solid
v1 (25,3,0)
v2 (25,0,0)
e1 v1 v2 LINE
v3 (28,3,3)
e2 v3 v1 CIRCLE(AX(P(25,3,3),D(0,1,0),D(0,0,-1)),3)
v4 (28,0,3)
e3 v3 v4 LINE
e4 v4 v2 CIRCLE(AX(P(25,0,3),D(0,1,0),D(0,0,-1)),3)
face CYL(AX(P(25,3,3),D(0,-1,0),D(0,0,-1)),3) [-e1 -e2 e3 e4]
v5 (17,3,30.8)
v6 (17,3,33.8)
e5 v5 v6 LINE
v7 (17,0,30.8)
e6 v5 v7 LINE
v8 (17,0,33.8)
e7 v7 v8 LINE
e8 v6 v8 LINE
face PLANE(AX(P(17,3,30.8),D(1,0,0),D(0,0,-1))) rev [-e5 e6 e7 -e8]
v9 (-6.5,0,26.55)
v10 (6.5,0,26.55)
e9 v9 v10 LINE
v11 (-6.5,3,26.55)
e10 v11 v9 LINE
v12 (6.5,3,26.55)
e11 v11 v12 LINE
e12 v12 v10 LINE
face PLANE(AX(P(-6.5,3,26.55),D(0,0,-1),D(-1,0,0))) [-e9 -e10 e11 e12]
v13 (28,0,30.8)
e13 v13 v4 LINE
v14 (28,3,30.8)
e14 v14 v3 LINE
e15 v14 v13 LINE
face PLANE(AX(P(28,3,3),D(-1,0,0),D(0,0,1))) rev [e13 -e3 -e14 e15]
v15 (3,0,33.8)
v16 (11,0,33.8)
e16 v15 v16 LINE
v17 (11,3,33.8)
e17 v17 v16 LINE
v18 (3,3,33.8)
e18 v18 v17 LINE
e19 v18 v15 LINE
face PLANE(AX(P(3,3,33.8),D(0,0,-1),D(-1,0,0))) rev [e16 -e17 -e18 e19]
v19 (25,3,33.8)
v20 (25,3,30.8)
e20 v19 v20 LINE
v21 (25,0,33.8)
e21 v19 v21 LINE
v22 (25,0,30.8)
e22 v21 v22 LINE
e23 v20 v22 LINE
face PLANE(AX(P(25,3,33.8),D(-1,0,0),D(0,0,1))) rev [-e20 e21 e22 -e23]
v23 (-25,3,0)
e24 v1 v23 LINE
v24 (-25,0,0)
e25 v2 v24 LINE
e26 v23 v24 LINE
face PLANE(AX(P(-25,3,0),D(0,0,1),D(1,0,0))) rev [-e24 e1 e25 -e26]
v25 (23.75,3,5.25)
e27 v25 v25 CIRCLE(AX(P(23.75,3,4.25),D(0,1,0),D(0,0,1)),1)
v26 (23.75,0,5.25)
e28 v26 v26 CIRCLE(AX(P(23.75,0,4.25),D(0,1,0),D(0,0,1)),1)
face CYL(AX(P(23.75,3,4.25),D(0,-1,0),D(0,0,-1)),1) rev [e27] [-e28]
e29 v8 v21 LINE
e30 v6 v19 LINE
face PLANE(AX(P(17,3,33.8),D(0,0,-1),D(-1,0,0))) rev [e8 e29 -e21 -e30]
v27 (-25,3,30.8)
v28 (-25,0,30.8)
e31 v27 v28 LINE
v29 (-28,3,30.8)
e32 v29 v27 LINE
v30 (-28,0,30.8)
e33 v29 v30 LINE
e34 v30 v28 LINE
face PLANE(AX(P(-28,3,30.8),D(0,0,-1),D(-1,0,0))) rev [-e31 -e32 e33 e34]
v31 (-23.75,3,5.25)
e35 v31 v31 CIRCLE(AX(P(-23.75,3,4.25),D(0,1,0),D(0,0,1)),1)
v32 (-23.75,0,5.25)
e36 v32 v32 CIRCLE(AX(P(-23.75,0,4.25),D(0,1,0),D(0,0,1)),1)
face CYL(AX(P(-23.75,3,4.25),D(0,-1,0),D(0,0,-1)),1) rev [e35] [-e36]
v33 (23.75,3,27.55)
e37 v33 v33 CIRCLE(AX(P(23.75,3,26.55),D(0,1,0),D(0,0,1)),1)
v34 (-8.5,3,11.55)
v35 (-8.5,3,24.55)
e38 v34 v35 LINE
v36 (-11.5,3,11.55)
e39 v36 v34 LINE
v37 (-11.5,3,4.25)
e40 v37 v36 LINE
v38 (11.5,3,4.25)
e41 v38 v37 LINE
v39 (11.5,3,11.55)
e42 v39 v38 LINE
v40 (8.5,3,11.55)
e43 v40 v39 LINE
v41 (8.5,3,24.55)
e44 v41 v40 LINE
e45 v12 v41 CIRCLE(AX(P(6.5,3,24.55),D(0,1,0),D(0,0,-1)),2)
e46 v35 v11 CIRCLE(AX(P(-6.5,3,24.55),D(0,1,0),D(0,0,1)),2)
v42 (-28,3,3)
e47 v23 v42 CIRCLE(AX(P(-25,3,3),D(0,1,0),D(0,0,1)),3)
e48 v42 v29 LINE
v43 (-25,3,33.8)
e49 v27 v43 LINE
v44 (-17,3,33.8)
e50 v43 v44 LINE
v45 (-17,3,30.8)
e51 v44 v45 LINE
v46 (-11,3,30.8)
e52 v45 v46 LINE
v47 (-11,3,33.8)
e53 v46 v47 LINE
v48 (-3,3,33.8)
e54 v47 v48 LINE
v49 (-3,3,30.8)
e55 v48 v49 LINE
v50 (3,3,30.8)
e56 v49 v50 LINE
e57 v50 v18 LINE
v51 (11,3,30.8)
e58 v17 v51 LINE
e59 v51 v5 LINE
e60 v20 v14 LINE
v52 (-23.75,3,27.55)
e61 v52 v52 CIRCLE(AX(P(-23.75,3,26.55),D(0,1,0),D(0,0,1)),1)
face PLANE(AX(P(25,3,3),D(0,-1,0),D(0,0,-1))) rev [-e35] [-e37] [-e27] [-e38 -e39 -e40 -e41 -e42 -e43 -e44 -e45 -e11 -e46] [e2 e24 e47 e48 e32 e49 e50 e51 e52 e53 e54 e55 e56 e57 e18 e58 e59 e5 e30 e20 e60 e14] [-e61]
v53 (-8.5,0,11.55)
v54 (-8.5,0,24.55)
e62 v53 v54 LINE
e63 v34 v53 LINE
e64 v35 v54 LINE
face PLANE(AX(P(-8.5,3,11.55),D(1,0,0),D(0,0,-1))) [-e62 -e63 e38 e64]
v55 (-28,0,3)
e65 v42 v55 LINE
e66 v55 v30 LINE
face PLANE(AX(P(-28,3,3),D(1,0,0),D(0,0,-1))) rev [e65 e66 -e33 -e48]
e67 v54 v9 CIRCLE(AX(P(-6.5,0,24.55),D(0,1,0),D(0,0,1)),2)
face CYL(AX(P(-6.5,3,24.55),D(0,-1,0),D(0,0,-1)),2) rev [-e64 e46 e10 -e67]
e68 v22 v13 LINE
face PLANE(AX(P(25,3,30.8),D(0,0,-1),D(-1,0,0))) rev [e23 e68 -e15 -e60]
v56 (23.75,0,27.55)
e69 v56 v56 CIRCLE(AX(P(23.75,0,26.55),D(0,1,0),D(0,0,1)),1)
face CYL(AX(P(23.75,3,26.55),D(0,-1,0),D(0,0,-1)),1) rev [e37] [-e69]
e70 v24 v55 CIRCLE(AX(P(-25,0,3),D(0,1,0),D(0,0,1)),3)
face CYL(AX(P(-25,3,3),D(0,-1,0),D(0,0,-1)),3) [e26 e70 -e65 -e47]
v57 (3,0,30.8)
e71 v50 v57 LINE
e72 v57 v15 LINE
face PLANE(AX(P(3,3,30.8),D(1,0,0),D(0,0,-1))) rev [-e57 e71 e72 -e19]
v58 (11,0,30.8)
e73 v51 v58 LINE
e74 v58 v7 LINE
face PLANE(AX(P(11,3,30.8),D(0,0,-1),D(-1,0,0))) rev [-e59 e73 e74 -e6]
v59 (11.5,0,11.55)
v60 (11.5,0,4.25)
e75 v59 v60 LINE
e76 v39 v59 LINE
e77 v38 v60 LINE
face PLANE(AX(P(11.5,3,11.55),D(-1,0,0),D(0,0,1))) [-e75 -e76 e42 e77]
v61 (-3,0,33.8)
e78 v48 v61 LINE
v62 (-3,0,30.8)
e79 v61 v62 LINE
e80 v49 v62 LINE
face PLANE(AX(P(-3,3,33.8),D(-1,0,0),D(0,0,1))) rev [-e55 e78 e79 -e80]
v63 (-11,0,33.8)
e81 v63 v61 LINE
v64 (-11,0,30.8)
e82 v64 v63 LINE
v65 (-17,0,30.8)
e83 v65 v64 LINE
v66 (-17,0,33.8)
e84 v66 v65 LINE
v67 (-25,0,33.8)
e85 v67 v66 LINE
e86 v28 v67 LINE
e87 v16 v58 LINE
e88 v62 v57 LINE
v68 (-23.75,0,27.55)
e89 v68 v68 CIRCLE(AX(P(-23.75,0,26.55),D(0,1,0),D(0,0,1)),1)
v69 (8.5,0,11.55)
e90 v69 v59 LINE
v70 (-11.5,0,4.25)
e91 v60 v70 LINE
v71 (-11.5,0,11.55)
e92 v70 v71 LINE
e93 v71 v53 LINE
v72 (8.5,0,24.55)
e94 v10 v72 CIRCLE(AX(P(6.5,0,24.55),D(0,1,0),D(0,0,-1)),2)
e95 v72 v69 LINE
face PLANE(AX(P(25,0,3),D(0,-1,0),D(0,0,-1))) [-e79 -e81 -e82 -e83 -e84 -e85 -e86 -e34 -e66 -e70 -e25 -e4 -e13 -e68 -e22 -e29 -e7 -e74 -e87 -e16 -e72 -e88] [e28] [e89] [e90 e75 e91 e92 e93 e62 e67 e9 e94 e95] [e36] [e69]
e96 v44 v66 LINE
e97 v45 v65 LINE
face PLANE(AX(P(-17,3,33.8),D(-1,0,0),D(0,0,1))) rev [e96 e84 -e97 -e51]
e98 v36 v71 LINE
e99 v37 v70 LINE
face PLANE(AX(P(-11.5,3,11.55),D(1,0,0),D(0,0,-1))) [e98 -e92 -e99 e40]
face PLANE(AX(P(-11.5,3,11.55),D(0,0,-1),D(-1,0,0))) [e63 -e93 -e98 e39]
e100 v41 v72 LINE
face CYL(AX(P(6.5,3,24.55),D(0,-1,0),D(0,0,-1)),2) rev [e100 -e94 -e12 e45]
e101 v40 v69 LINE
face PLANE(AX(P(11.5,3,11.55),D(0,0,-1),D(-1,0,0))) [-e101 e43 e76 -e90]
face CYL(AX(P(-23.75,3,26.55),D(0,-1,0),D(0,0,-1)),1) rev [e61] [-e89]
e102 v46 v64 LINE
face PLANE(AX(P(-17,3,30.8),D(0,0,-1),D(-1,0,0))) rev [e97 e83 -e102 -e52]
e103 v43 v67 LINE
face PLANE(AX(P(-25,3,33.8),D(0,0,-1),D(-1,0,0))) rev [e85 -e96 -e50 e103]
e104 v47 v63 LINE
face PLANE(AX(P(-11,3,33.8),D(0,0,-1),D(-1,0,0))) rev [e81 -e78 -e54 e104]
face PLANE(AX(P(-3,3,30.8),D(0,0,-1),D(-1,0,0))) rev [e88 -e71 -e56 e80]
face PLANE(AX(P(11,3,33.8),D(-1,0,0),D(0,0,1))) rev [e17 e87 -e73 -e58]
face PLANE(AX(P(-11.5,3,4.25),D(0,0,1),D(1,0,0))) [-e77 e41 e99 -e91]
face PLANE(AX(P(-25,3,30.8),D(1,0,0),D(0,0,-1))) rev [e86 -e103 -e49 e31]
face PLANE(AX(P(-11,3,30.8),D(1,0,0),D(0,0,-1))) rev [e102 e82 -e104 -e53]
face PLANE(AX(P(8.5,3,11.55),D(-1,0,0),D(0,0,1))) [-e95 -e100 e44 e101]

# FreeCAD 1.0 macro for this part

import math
import FreeCAD as App
import Part
import Sketcher

doc = App.newDocument("Part")
body = doc.addObject("PartDesign::Body", "Body")

sketch1 = body.newObject("Sketcher::SketchObject", "Sketch")
sketch1.AttachmentSupport = (doc.getObject("XZ_Plane"), [""])
sketch1.MapMode = "FlatFace"
sketch1.addGeometry(Part.LineSegment(App.Vector(-28, 30.8, 0), App.Vector(-25, 30.8, 0)), False)
sketch1.addGeometry(Part.LineSegment(App.Vector(-25, 30.8, 0), App.Vector(-25, 33.8, 0)), False)
sketch1.addGeometry(Part.LineSegment(App.Vector(-25, 33.8, 0), App.Vector(-17, 33.8, 0)), False)
sketch1.addGeometry(Part.LineSegment(App.Vector(-17, 33.8, 0), App.Vector(-17, 30.8, 0)), False)
sketch1.addGeometry(Part.LineSegment(App.Vector(-17, 30.8, 0), App.Vector(-11, 30.8, 0)), False)
sketch1.addGeometry(Part.LineSegment(App.Vector(-11, 30.8, 0), App.Vector(-11, 33.8, 0)), False)
sketch1.addGeometry(Part.LineSegment(App.Vector(-11, 33.8, 0), App.Vector(-3, 33.8, 0)), False)
sketch1.addGeometry(Part.LineSegment(App.Vector(-3, 33.8, 0), App.Vector(-3, 30.8, 0)), False)
sketch1.addGeometry(Part.LineSegment(App.Vector(-3, 30.8, 0), App.Vector(3, 30.8, 0)), False)
sketch1.addGeometry(Part.LineSegment(App.Vector(3, 30.8, 0), App.Vector(3, 33.8, 0)), False)
sketch1.addGeometry(Part.LineSegment(App.Vector(3, 33.8, 0), App.Vector(11, 33.8, 0)), False)
sketch1.addGeometry(Part.LineSegment(App.Vector(11, 33.8, 0), App.Vector(11, 30.8, 0)), False)
sketch1.addGeometry(Part.LineSegment(App.Vector(11, 30.8, 0), App.Vector(17, 30.8, 0)), False)
sketch1.addGeometry(Part.LineSegment(App.Vector(17, 30.8, 0), App.Vector(17, 33.8, 0)), False)
sketch1.addGeometry(Part.LineSegment(App.Vector(17, 33.8, 0), App.Vector(25, 33.8, 0)), False)
sketch1.addGeometry(Part.LineSegment(App.Vector(25, 33.8, 0), App.Vector(25, 30.8, 0)), False)
sketch1.addGeometry(Part.LineSegment(App.Vector(25, 30.8, 0), App.Vector(28, 30.8, 0)), False)
sketch1.addGeometry(Part.LineSegment(App.Vector(28, 30.8, 0), App.Vector(28, 3, 0)), False)
sketch1.addGeometry(Part.ArcOfCircle(Part.Circle(App.Vector(25, 3, 0), App.Vector(0, 0, 1), 3), math.radians(-90), math.radians(0)), False)
sketch1.addGeometry(Part.LineSegment(App.Vector(25, 0, 0), App.Vector(-25, 0, 0)), False)
sketch1.addGeometry(Part.ArcOfCircle(Part.Circle(App.Vector(-25, 3, 0), App.Vector(0, 0, 1), 3), math.radians(180), math.radians(270)), False)
sketch1.addGeometry(Part.LineSegment(App.Vector(-28, 3, 0), App.Vector(-28, 30.8, 0)), False)
sketch1.addGeometry(Part.Circle(App.Vector(-23.8, 26.6, 0), App.Vector(0, 0, 1), 1), False)
sketch1.addGeometry(Part.Circle(App.Vector(23.8, 26.6, 0), App.Vector(0, 0, 1), 1), False)
sketch1.addGeometry(Part.Circle(App.Vector(-23.8, 4.2, 0), App.Vector(0, 0, 1), 1), False)
sketch1.addGeometry(Part.LineSegment(App.Vector(-8.5, 11.6, 0), App.Vector(-11.5, 11.6, 0)), False)
sketch1.addGeometry(Part.LineSegment(App.Vector(-11.5, 11.6, 0), App.Vector(-11.5, 4.2, 0)), False)
sketch1.addGeometry(Part.LineSegment(App.Vector(-11.5, 4.2, 0), App.Vector(11.5, 4.2, 0)), False)
sketch1.addGeometry(Part.LineSegment(App.Vector(11.5, 4.2, 0), App.Vector(11.5, 11.6, 0)), False)
sketch1.addGeometry(Part.LineSegment(App.Vector(11.5, 11.6, 0), App.Vector(8.5, 11.6, 0)), False)
sketch1.addGeometry(Part.LineSegment(App.Vector(8.5, 11.6, 0), App.Vector(8.5, 24.6, 0)), False)
sketch1.addGeometry(Part.ArcOfCircle(Part.Circle(App.Vector(6.5, 24.5, 0), App.Vector(0, 0, 1), 2), math.radians(0), math.radians(90)), False)
sketch1.addGeometry(Part.LineSegment(App.Vector(6.5, 26.6, 0), App.Vector(-6.5, 26.6, 0)), False)
sketch1.addGeometry(Part.ArcOfCircle(Part.Circle(App.Vector(-6.5, 24.5, 0), App.Vector(0, 0, 1), 2), math.radians(90), math.radians(180)), False)
sketch1.addGeometry(Part.LineSegment(App.Vector(-8.5, 24.6, 0), App.Vector(-8.5, 11.6, 0)), False)
sketch1.addGeometry(Part.Circle(App.Vector(23.8, 4.2, 0), App.Vector(0, 0, 1), 1), False)
sketch1.addConstraint(Sketcher.Constraint("Coincident", 0, 2, 1, 1))
sketch1.addConstraint(Sketcher.Constraint("Coincident", 1, 2, 2, 1))
sketch1.addConstraint(Sketcher.Constraint("Coincident", 2, 2, 3, 1))
sketch1.addConstraint(Sketcher.Constraint("Coincident", 3, 2, 4, 1))
sketch1.addConstraint(Sketcher.Constraint("Coincident", 4, 2, 5, 1))
sketch1.addConstraint(Sketcher.Constraint("Coincident", 5, 2, 6, 1))
sketch1.addConstraint(Sketcher.Constraint("Coincident", 6, 2, 7, 1))
sketch1.addConstraint(Sketcher.Constraint("Coincident", 7, 2, 8, 1))
sketch1.addConstraint(Sketcher.Constraint("Coincident", 8, 2, 9, 1))
sketch1.addConstraint(Sketcher.Constraint("Coincident", 9, 2, 10, 1))
sketch1.addConstraint(Sketcher.Constraint("Coincident", 10, 2, 11, 1))
sketch1.addConstraint(Sketcher.Constraint("Coincident", 11, 2, 12, 1))
sketch1.addConstraint(Sketcher.Constraint("Coincident", 12, 2, 13, 1))
sketch1.addConstraint(Sketcher.Constraint("Coincident", 13, 2, 14, 1))
sketch1.addConstraint(Sketcher.Constraint("Coincident", 14, 2, 15, 1))
sketch1.addConstraint(Sketcher.Constraint("Coincident", 15, 2, 16, 1))
sketch1.addConstraint(Sketcher.Constraint("Coincident", 16, 2, 17, 1))
sketch1.addConstraint(Sketcher.Constraint("Tangent", 17, 2, 18, 2))
sketch1.addConstraint(Sketcher.Constraint("Tangent", 18, 1, 19, 1))
sketch1.addConstraint(Sketcher.Constraint("Tangent", 19, 2, 20, 2))
sketch1.addConstraint(Sketcher.Constraint("Tangent", 20, 1, 21, 1))
sketch1.addConstraint(Sketcher.Constraint("Coincident", 21, 2, 0, 1))
sketch1.addConstraint(Sketcher.Constraint("Coincident", 25, 2, 26, 1))
sketch1.addConstraint(Sketcher.Constraint("Coincident", 26, 2, 27, 1))
sketch1.addConstraint(Sketcher.Constraint("Coincident", 27, 2, 28, 1))
sketch1.addConstraint(Sketcher.Constraint("Coincident", 28, 2, 29, 1))
sketch1.addConstraint(Sketcher.Constraint("Coincident", 29, 2, 30, 1))
sketch1.addConstraint(Sketcher.Constraint("Tangent", 30, 2, 31, 1))
sketch1.addConstraint(Sketcher.Constraint("Tangent", 31, 2, 32, 1))
sketch1.addConstraint(Sketcher.Constraint("Tangent", 32, 2, 33, 1))
sketch1.addConstraint(Sketcher.Constraint("Tangent", 33, 2, 34, 1))
sketch1.addConstraint(Sketcher.Constraint("Coincident", 34, 2, 25, 1))
sketch1.addConstraint(Sketcher.Constraint("Horizontal", 0))
sketch1.addConstraint(Sketcher.Constraint("Vertical", 1))
sketch1.addConstraint(Sketcher.Constraint("Horizontal", 2))
sketch1.addConstraint(Sketcher.Constraint("Vertical", 3))
sketch1.addConstraint(Sketcher.Constraint("Horizontal", 4))
sketch1.addConstraint(Sketcher.Constraint("Vertical", 5))
sketch1.addConstraint(Sketcher.Constraint("Horizontal", 6))
sketch1.addConstraint(Sketcher.Constraint("Vertical", 7))
sketch1.addConstraint(Sketcher.Constraint("Horizontal", 8))
sketch1.addConstraint(Sketcher.Constraint("Vertical", 9))
sketch1.addConstraint(Sketcher.Constraint("Horizontal", 10))
sketch1.addConstraint(Sketcher.Constraint("Vertical", 11))
sketch1.addConstraint(Sketcher.Constraint("Horizontal", 12))
sketch1.addConstraint(Sketcher.Constraint("Vertical", 13))
sketch1.addConstraint(Sketcher.Constraint("Horizontal", 14))
sketch1.addConstraint(Sketcher.Constraint("Vertical", 15))
sketch1.addConstraint(Sketcher.Constraint("Horizontal", 16))
sketch1.addConstraint(Sketcher.Constraint("Vertical", 17))
sketch1.addConstraint(Sketcher.Constraint("Horizontal", 19))
sketch1.addConstraint(Sketcher.Constraint("Vertical", 21))
sketch1.addConstraint(Sketcher.Constraint("Horizontal", 25))
sketch1.addConstraint(Sketcher.Constraint("Vertical", 26))
sketch1.addConstraint(Sketcher.Constraint("Horizontal", 27))
sketch1.addConstraint(Sketcher.Constraint("Vertical", 28))
sketch1.addConstraint(Sketcher.Constraint("Horizontal", 29))
sketch1.addConstraint(Sketcher.Constraint("Vertical", 30))
sketch1.addConstraint(Sketcher.Constraint("Horizontal", 32))
sketch1.addConstraint(Sketcher.Constraint("Vertical", 34))
sketch1.addConstraint(Sketcher.Constraint("Equal", 18, 20))
sketch1.addConstraint(Sketcher.Constraint("Equal", 22, 23))
sketch1.addConstraint(Sketcher.Constraint("Equal", 23, 24))
sketch1.addConstraint(Sketcher.Constraint("Equal", 31, 33))
sketch1.addConstraint(Sketcher.Constraint("Equal", 24, 35))
sketch1.addConstraint(Sketcher.Constraint("Symmetric", 18, 1, 19, 2, -1, 1))
sketch1.addConstraint(Sketcher.Constraint("Symmetric", 22, 3, 23, 3, -2))
sketch1.addConstraint(Sketcher.Constraint("Symmetric", 24, 3, 35, 3, -2))
sketch1.addConstraint(Sketcher.Constraint("Symmetric", 6, 2, 9, 2, -2))
sketch1.addConstraint(Sketcher.Constraint("Symmetric", 4, 2, 11, 2, -2))
sketch1.addConstraint(Sketcher.Constraint("Symmetric", 2, 2, 13, 2, -2))
sketch1.addConstraint(Sketcher.Constraint("Symmetric", 0, 2, 15, 2, -2))
sketch1.addConstraint(Sketcher.Constraint("Symmetric", 25, 2, 28, 2, -2))
sketch1.addConstraint(Sketcher.Constraint("Horizontal", 0, 2, 3, 2))
sketch1.addConstraint(Sketcher.Constraint("Horizontal", 2, 2, 5, 2))
sketch1.addConstraint(Sketcher.Constraint("Horizontal", 4, 2, 7, 2))
sketch1.addConstraint(Sketcher.Constraint("Horizontal", 35, 3, 26, 2))
sketch1.addConstraint(Sketcher.Constraint("Horizontal", 23, 3, 31, 2))
sketch1.addConstraint(Sketcher.Constraint("Vertical", 22, 3, 24, 3))
sketch1.addConstraint(Sketcher.Constraint("Vertical", 20, 3, 0, 2))
sketch1.addConstraint(Sketcher.Constraint("Equal", 2, 6))
sketch1.addConstraint(Sketcher.Constraint("Equal", 4, 8))
sketch1.addConstraint(Sketcher.Constraint("Equal", 16, 25))
sketch1.addConstraint(Sketcher.Constraint("Equal", 25, 29))
sketch1.addConstraint(Sketcher.Constraint("Equal", 29, 1))
sketch1.addConstraint(Sketcher.Constraint("Equal", 32, 30))
sketch1.addConstraint(Sketcher.Constraint("Diameter", 22, 2.0))
sketch1.addConstraint(Sketcher.Constraint("Radius", 18, 3.0))
sketch1.addConstraint(Sketcher.Constraint("Radius", 31, 2.0))
sketch1.addConstraint(Sketcher.Constraint("DistanceX", 2, 1, 2, 2, 8.0))
sketch1.addConstraint(Sketcher.Constraint("DistanceX", 4, 1, 4, 2, 6.0))
sketch1.addConstraint(Sketcher.Constraint("DistanceX", 27, 1, 27, 2, 23.0))
sketch1.addConstraint(Sketcher.Constraint("DistanceY", 17, 2, 17, 1, 27.8))
sketch1.addConstraint(Sketcher.Constraint("DistanceY", 26, 2, 26, 1, 7.3))
sketch1.addConstraint(Sketcher.Constraint("DistanceX", 22, 3, 23, 3, 47.5))
sketch1.addConstraint(Sketcher.Constraint("DistanceY", -1, 1, 22, 3, 26.55))
pad1 = body.newObject("PartDesign::Pad", "Pad")
pad1.Profile = sketch1
pad1.Length = 3
pad1.Reversed = True

doc.recompute()
